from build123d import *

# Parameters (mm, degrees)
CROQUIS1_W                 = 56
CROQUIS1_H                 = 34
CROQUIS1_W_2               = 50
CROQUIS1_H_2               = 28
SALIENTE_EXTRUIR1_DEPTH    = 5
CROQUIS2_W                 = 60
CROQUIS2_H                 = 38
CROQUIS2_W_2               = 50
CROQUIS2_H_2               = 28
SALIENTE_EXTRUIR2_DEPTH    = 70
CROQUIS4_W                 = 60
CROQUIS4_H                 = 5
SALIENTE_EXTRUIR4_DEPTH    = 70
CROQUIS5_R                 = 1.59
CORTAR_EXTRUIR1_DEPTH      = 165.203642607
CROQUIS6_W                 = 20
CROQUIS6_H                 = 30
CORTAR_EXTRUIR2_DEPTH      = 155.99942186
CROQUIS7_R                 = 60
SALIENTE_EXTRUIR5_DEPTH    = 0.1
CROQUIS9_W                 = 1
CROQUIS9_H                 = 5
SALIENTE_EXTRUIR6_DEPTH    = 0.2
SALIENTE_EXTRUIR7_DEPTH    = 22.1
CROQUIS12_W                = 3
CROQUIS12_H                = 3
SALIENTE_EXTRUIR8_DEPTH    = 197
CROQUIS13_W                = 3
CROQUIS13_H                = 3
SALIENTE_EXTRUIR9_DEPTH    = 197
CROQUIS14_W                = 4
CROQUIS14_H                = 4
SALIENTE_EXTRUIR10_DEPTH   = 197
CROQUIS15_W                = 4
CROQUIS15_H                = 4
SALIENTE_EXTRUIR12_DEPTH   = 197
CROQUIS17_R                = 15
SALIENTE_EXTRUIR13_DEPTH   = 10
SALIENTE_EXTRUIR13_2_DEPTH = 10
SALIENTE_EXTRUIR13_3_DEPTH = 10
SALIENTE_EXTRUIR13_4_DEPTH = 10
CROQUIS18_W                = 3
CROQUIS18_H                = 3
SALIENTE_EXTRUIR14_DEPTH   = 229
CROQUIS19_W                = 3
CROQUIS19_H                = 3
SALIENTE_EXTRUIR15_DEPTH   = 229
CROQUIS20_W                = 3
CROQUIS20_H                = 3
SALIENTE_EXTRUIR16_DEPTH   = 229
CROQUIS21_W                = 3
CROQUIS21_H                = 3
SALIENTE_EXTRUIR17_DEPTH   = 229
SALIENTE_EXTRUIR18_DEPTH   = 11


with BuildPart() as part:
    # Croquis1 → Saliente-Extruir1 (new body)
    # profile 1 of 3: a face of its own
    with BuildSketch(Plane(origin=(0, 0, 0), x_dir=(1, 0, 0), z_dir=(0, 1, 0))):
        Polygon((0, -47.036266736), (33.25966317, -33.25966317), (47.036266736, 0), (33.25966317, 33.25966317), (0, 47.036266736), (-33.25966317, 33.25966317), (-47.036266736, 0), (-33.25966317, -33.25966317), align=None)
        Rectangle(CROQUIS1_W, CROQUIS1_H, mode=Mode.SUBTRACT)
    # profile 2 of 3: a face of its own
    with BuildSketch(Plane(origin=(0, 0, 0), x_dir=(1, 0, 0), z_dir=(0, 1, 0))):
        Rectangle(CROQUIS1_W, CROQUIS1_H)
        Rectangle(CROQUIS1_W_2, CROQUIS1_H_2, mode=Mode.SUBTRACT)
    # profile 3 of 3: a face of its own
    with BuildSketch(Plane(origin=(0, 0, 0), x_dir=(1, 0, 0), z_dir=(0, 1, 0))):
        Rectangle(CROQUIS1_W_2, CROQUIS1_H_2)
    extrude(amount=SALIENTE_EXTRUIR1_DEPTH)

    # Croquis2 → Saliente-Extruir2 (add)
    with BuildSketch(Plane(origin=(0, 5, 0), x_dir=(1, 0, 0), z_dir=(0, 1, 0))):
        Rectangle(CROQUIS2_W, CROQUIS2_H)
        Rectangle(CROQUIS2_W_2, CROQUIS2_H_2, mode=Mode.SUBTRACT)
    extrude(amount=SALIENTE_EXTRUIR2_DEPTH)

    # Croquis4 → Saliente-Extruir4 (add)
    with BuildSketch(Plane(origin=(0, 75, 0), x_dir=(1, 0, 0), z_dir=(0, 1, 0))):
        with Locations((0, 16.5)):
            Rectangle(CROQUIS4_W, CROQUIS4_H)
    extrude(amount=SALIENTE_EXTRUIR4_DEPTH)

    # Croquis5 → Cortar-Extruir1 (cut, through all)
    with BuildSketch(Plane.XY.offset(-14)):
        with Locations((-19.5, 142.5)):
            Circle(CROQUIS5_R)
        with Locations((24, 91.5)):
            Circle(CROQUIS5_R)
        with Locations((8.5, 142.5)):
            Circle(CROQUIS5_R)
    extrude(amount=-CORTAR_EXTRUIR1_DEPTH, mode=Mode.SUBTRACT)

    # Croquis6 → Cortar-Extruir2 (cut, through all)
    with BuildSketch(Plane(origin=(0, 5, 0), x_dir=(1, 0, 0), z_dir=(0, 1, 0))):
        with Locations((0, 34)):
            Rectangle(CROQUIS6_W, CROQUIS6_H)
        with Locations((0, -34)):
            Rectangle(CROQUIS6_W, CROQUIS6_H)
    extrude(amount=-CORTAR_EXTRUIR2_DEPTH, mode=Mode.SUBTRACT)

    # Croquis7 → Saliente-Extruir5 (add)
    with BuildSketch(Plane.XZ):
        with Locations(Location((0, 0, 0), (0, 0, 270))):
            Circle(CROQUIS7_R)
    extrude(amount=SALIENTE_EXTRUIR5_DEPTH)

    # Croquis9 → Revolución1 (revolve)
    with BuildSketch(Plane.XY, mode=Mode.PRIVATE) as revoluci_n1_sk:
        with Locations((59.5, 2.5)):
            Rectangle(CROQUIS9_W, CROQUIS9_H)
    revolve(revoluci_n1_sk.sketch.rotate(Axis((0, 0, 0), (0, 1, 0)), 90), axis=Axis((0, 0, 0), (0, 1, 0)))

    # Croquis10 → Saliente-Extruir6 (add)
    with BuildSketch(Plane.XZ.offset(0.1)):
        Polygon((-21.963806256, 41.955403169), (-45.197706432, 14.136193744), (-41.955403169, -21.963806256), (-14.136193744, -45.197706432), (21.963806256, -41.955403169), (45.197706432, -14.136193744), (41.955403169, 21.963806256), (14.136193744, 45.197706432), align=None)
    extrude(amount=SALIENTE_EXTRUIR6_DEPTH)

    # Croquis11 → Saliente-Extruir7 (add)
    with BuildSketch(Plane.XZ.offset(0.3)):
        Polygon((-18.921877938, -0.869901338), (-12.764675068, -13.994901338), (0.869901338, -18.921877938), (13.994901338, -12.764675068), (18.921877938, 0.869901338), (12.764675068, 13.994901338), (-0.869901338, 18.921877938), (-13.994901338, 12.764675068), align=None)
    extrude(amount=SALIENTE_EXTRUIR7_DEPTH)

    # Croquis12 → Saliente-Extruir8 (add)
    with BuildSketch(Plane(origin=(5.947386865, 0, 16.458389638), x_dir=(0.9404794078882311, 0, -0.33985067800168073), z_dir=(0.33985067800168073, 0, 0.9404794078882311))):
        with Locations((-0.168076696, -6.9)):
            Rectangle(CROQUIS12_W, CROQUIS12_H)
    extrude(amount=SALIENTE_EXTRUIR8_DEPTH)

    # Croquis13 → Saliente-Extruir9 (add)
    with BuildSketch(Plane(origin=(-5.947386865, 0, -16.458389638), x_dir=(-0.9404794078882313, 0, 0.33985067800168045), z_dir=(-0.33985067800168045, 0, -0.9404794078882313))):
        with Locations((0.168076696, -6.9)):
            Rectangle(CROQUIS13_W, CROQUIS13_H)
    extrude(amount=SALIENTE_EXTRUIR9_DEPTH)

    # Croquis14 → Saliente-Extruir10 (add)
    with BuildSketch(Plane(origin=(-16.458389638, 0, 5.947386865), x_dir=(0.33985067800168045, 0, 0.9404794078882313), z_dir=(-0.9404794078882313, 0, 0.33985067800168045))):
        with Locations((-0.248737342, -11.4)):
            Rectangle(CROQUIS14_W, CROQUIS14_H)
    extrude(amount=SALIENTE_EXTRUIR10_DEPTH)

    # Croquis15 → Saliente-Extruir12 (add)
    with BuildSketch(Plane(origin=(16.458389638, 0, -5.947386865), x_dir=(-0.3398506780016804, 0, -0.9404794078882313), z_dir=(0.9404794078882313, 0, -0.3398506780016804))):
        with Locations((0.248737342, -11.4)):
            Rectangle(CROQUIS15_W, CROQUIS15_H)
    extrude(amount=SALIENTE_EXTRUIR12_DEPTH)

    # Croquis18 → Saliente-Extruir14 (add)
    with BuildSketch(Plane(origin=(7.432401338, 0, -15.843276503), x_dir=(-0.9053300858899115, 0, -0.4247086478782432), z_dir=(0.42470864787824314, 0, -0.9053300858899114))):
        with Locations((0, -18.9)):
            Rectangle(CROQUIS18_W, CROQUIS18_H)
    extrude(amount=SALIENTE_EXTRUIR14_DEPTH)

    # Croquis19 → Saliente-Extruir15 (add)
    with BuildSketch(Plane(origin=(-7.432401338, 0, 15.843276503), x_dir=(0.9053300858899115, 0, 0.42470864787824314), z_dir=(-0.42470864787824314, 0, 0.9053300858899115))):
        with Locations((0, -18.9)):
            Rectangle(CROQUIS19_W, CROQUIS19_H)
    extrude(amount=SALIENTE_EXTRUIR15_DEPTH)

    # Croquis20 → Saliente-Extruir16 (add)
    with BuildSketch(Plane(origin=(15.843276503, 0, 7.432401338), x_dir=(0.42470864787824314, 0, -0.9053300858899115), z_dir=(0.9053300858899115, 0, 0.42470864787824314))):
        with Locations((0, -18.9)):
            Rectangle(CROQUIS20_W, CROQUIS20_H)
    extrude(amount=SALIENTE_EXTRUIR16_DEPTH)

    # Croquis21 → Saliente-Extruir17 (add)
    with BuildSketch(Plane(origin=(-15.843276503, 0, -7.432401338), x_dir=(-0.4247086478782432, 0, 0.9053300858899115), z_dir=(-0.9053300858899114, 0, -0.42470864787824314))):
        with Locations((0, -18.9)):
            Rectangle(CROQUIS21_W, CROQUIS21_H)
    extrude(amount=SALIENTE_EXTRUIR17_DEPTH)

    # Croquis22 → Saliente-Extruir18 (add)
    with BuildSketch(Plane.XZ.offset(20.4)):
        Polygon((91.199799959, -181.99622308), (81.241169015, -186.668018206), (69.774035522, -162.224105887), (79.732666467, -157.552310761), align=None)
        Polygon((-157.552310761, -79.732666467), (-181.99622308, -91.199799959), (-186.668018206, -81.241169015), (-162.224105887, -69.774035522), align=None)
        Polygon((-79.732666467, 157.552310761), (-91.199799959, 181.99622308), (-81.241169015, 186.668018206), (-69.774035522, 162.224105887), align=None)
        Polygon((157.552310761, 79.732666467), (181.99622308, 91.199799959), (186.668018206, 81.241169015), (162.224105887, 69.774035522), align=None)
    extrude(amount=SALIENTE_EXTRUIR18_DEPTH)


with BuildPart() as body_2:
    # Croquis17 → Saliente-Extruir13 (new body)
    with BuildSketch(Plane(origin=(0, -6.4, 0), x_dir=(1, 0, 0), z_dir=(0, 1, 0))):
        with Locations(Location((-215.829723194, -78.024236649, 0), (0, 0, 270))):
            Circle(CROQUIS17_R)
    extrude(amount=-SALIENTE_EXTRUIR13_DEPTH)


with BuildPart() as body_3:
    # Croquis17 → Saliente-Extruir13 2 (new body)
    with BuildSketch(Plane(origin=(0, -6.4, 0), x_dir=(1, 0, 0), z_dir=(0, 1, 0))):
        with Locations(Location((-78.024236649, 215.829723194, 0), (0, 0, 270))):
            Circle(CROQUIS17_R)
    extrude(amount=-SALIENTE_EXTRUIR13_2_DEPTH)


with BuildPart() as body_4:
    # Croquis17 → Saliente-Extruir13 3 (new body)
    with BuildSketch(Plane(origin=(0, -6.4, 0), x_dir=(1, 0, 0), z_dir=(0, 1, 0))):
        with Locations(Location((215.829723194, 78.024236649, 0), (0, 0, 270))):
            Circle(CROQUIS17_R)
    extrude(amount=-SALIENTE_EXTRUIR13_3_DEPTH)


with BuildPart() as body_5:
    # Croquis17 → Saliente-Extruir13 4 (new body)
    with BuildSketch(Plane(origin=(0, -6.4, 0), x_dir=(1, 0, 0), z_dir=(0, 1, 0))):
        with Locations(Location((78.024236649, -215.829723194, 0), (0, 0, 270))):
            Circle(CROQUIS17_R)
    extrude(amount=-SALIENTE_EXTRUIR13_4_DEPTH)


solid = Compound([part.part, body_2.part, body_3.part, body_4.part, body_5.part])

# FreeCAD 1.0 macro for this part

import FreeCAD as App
import Part
import Sketcher
Q = App.Units.Quantity

doc = App.newDocument("Part")
body = doc.addObject("PartDesign::Body", "Body")

# Sketch on XZ plane
sketch1 = body.newObject("Sketcher::SketchObject", "Sketch")
sketch1.AttachmentSupport = (doc.getObject("XZ_Plane"), [""])
sketch1.MapMode = "FlatFace"
sketch1.addGeometry(Part.LineSegment(App.Vector(0, 47, 0), App.Vector(33, 33, 0)), False)
sketch1.addGeometry(Part.LineSegment(App.Vector(33, 33, 0), App.Vector(47, 0, 0)), False)
sketch1.addGeometry(Part.LineSegment(App.Vector(47, 0, 0), App.Vector(33, -33, 0)), False)
sketch1.addGeometry(Part.LineSegment(App.Vector(33, -33, 0), App.Vector(0, -47, 0)), False)
sketch1.addGeometry(Part.LineSegment(App.Vector(0, -47, 0), App.Vector(-33, -33, 0)), False)
sketch1.addGeometry(Part.LineSegment(App.Vector(-33, -33, 0), App.Vector(-47, 0, 0)), False)
sketch1.addGeometry(Part.LineSegment(App.Vector(-47, 0, 0), App.Vector(-33, 33, 0)), False)
sketch1.addGeometry(Part.LineSegment(App.Vector(-33, 33, 0), App.Vector(0, 47, 0)), False)
sketch1.addConstraint(Sketcher.Constraint("Coincident", 0, 2, 1, 1))
sketch1.addConstraint(Sketcher.Constraint("Coincident", 1, 2, 2, 1))
sketch1.addConstraint(Sketcher.Constraint("Coincident", 2, 2, 3, 1))
sketch1.addConstraint(Sketcher.Constraint("Coincident", 3, 2, 4, 1))
sketch1.addConstraint(Sketcher.Constraint("Coincident", 4, 2, 5, 1))
sketch1.addConstraint(Sketcher.Constraint("Coincident", 5, 2, 6, 1))
sketch1.addConstraint(Sketcher.Constraint("Coincident", 6, 2, 7, 1))
sketch1.addConstraint(Sketcher.Constraint("Coincident", 7, 2, 0, 1))
sketch1.addConstraint(Sketcher.Constraint("Symmetric", 0, 2, 4, 2, -1, 1))
sketch1.addConstraint(Sketcher.Constraint("Symmetric", 1, 2, 5, 2, -1, 1))
sketch1.addConstraint(Sketcher.Constraint("Symmetric", 2, 2, 6, 2, -1, 1))
sketch1.addConstraint(Sketcher.Constraint("Symmetric", 3, 2, 7, 2, -1, 1))
sketch1.addConstraint(Sketcher.Constraint("Symmetric", 2, 2, 4, 2, -2))
sketch1.addConstraint(Sketcher.Constraint("PointOnObject", 1, 2, -1))
sketch1.addConstraint(Sketcher.Constraint("PointOnObject", 3, 2, -2))
sketch1.addConstraint(Sketcher.Constraint("Perpendicular", 0, 2))
sketch1.addConstraint(Sketcher.Constraint("Equal", 0, 1))
sketch1.addConstraint(Sketcher.Constraint("Distance", 0, 36.0))
sketch1.addConstraint(Sketcher.Constraint("Angle", 0, Q("-22.5 deg")))
pad1 = body.newObject("PartDesign::Pad", "Pad")
pad1.Profile = sketch1
pad1.Length = 5
pad1.Reversed = True

# Sketch on XZ plane
sketch2 = body.newObject("Sketcher::SketchObject", "Sketch001")
sketch2.AttachmentSupport = (doc.getObject("XZ_Plane"), [""])
sketch2.MapMode = "FlatFace"
sketch2.AttachmentOffset = App.Placement(App.Vector(0, 0, -5), App.Rotation())
sketch2.addGeometry(Part.LineSegment(App.Vector(-30, -19, 0), App.Vector(-30, 19, 0)), False)
sketch2.addGeometry(Part.LineSegment(App.Vector(-30, 19, 0), App.Vector(30, 19, 0)), False)
sketch2.addGeometry(Part.LineSegment(App.Vector(30, 19, 0), App.Vector(30, -19, 0)), False)
sketch2.addGeometry(Part.LineSegment(App.Vector(30, -19, 0), App.Vector(-30, -19, 0)), False)
sketch2.addGeometry(Part.LineSegment(App.Vector(25, 14, 0), App.Vector(-25, 14, 0)), False)
sketch2.addGeometry(Part.LineSegment(App.Vector(-25, 14, 0), App.Vector(-25, -14, 0)), False)
sketch2.addGeometry(Part.LineSegment(App.Vector(-25, -14, 0), App.Vector(25, -14, 0)), False)
sketch2.addGeometry(Part.LineSegment(App.Vector(25, -14, 0), App.Vector(25, 14, 0)), False)
sketch2.addConstraint(Sketcher.Constraint("Coincident", 0, 2, 1, 1))
sketch2.addConstraint(Sketcher.Constraint("Coincident", 1, 2, 2, 1))
sketch2.addConstraint(Sketcher.Constraint("Coincident", 2, 2, 3, 1))
sketch2.addConstraint(Sketcher.Constraint("Coincident", 3, 2, 0, 1))
sketch2.addConstraint(Sketcher.Constraint("Coincident", 4, 2, 5, 1))
sketch2.addConstraint(Sketcher.Constraint("Coincident", 5, 2, 6, 1))
sketch2.addConstraint(Sketcher.Constraint("Coincident", 6, 2, 7, 1))
sketch2.addConstraint(Sketcher.Constraint("Coincident", 7, 2, 4, 1))
sketch2.addConstraint(Sketcher.Constraint("Vertical", 0))
sketch2.addConstraint(Sketcher.Constraint("Horizontal", 1))
sketch2.addConstraint(Sketcher.Constraint("Vertical", 2))
sketch2.addConstraint(Sketcher.Constraint("Horizontal", 3))
sketch2.addConstraint(Sketcher.Constraint("Horizontal", 4))
sketch2.addConstraint(Sketcher.Constraint("Vertical", 5))
sketch2.addConstraint(Sketcher.Constraint("Horizontal", 6))
sketch2.addConstraint(Sketcher.Constraint("Vertical", 7))
sketch2.addConstraint(Sketcher.Constraint("Symmetric", 0, 2, 2, 2, -1, 1))
sketch2.addConstraint(Sketcher.Constraint("Symmetric", 4, 2, 6, 2, -1, 1))
sketch2.addConstraint(Sketcher.Constraint("DistanceX", 1, 1, 1, 2, 60.0))
sketch2.addConstraint(Sketcher.Constraint("DistanceX", 4, 2, 4, 1, 50.0))
sketch2.addConstraint(Sketcher.Constraint("DistanceY", 0, 1, 0, 2, 38.0))
sketch2.addConstraint(Sketcher.Constraint("DistanceY", 5, 2, 5, 1, 28.0))
pad2 = body.newObject("PartDesign::Pad", "Pad001")
pad2.Profile = sketch2
pad2.Length = 70
pad2.Reversed = True

# Sketch on XZ plane
sketch3 = body.newObject("Sketcher::SketchObject", "Sketch002")
sketch3.AttachmentSupport = (doc.getObject("XZ_Plane"), [""])
sketch3.MapMode = "FlatFace"
sketch3.AttachmentOffset = App.Placement(App.Vector(0, 0, -75), App.Rotation())
sketch3.addGeometry(Part.LineSegment(App.Vector(-30, -19, 0), App.Vector(-30, -14, 0)), False)
sketch3.addGeometry(Part.LineSegment(App.Vector(-30, -14, 0), App.Vector(30, -14, 0)), False)
sketch3.addGeometry(Part.LineSegment(App.Vector(30, -14, 0), App.Vector(30, -19, 0)), False)
sketch3.addGeometry(Part.LineSegment(App.Vector(30, -19, 0), App.Vector(-30, -19, 0)), False)
sketch3.addConstraint(Sketcher.Constraint("Coincident", 0, 2, 1, 1))
sketch3.addConstraint(Sketcher.Constraint("Coincident", 1, 2, 2, 1))
sketch3.addConstraint(Sketcher.Constraint("Coincident", 2, 2, 3, 1))
sketch3.addConstraint(Sketcher.Constraint("Coincident", 3, 2, 0, 1))
sketch3.addConstraint(Sketcher.Constraint("Vertical", 0))
sketch3.addConstraint(Sketcher.Constraint("Horizontal", 1))
sketch3.addConstraint(Sketcher.Constraint("Vertical", 2))
sketch3.addConstraint(Sketcher.Constraint("Horizontal", 3))
sketch3.addConstraint(Sketcher.Constraint("DistanceX", 1, 1, 1, 2, 60.0))
sketch3.addConstraint(Sketcher.Constraint("DistanceY", 0, 1, 0, 2, 5.0))
sketch3.addConstraint(Sketcher.Constraint("DistanceX", 0, 2, -1, 1, 30.0))
sketch3.addConstraint(Sketcher.Constraint("DistanceY", 0, 2, -1, 1, 14.0))
pad3 = body.newObject("PartDesign::Pad", "Pad002")
pad3.Profile = sketch3
pad3.Length = 70
pad3.Reversed = True

# Sketch on XY plane
sketch4 = body.newObject("Sketcher::SketchObject", "Sketch003")
sketch4.AttachmentSupport = (doc.getObject("XY_Plane"), [""])
sketch4.MapMode = "FlatFace"
sketch4.AttachmentOffset = App.Placement(App.Vector(0, 0, -14), App.Rotation())
sketch4.addGeometry(Part.Circle(App.Vector(-19.5, 142.5, 0), App.Vector(0, 0, 1), 1.6), False)
sketch4.addGeometry(Part.Circle(App.Vector(24, 91.5, 0), App.Vector(0, 0, 1), 1.6), False)
sketch4.addGeometry(Part.Circle(App.Vector(8.5, 142.5, 0), App.Vector(0, 0, 1), 1.6), False)
sketch4.addConstraint(Sketcher.Constraint("Equal", 0, 1))
sketch4.addConstraint(Sketcher.Constraint("Equal", 1, 2))
sketch4.addConstraint(Sketcher.Constraint("Horizontal", 0, 3, 2, 3))
sketch4.addConstraint(Sketcher.Constraint("Diameter", 0, 3.18))
sketch4.addConstraint(Sketcher.Constraint("DistanceX", -1, 1, 1, 3, 24.0))
sketch4.addConstraint(Sketcher.Constraint("DistanceY", 1, 3, 0, 3, 51.0))
sketch4.addConstraint(Sketcher.Constraint("DistanceX", 0, 3, 2, 3, 28.0))
sketch4.addConstraint(Sketcher.Constraint("DistanceX", 0, 3, -1, 1, 19.5))
sketch4.addConstraint(Sketcher.Constraint("DistanceY", -1, 1, 0, 3, 142.5))
pocket1 = body.newObject("PartDesign::Pocket", "Pocket")
pocket1.Profile = sketch4
pocket1.Type = "ThroughAll"

# Sketch on XZ plane
sketch5 = body.newObject("Sketcher::SketchObject", "Sketch004")
sketch5.AttachmentSupport = (doc.getObject("XZ_Plane"), [""])
sketch5.MapMode = "FlatFace"
sketch5.AttachmentOffset = App.Placement(App.Vector(0, 0, -5), App.Rotation())
sketch5.addGeometry(Part.LineSegment(App.Vector(-10, -49, 0), App.Vector(-10, -19, 0)), False)
sketch5.addGeometry(Part.LineSegment(App.Vector(-10, -19, 0), App.Vector(10, -19, 0)), False)
sketch5.addGeometry(Part.LineSegment(App.Vector(10, -19, 0), App.Vector(10, -49, 0)), False)
sketch5.addGeometry(Part.LineSegment(App.Vector(10, -49, 0), App.Vector(-10, -49, 0)), False)
sketch5.addGeometry(Part.LineSegment(App.Vector(-10, 19, 0), App.Vector(-10, 49, 0)), False)
sketch5.addGeometry(Part.LineSegment(App.Vector(-10, 49, 0), App.Vector(10, 49, 0)), False)
sketch5.addGeometry(Part.LineSegment(App.Vector(10, 49, 0), App.Vector(10, 19, 0)), False)
sketch5.addGeometry(Part.LineSegment(App.Vector(10, 19, 0), App.Vector(-10, 19, 0)), False)
sketch5.addConstraint(Sketcher.Constraint("Coincident", 0, 2, 1, 1))
sketch5.addConstraint(Sketcher.Constraint("Coincident", 1, 2, 2, 1))
sketch5.addConstraint(Sketcher.Constraint("Coincident", 2, 2, 3, 1))
sketch5.addConstraint(Sketcher.Constraint("Coincident", 3, 2, 0, 1))
sketch5.addConstraint(Sketcher.Constraint("Coincident", 4, 2, 5, 1))
sketch5.addConstraint(Sketcher.Constraint("Coincident", 5, 2, 6, 1))
sketch5.addConstraint(Sketcher.Constraint("Coincident", 6, 2, 7, 1))
sketch5.addConstraint(Sketcher.Constraint("Coincident", 7, 2, 4, 1))
sketch5.addConstraint(Sketcher.Constraint("Vertical", 0))
sketch5.addConstraint(Sketcher.Constraint("Horizontal", 1))
sketch5.addConstraint(Sketcher.Constraint("Vertical", 2))
sketch5.addConstraint(Sketcher.Constraint("Horizontal", 3))
sketch5.addConstraint(Sketcher.Constraint("Vertical", 4))
sketch5.addConstraint(Sketcher.Constraint("Horizontal", 5))
sketch5.addConstraint(Sketcher.Constraint("Vertical", 6))
sketch5.addConstraint(Sketcher.Constraint("Horizontal", 7))
sketch5.addConstraint(Sketcher.Constraint("Symmetric", 2, 2, 4, 2, -1, 1))
sketch5.addConstraint(Sketcher.Constraint("Symmetric", 0, 2, 6, 2, -1, 1))
sketch5.addConstraint(Sketcher.Constraint("Vertical", 3, 2, 4, 2))
sketch5.addConstraint(Sketcher.Constraint("DistanceX", 1, 1, 1, 2, 20.0))
sketch5.addConstraint(Sketcher.Constraint("DistanceY", 0, 1, 0, 2, 30.0))
sketch5.addConstraint(Sketcher.Constraint("DistanceY", 0, 2, -1, 1, 19.0))
pocket2 = body.newObject("PartDesign::Pocket", "Pocket001")
pocket2.Profile = sketch5
pocket2.Type = "ThroughAll"
pocket2.Reversed = True

# Sketch on XZ plane
sketch6 = body.newObject("Sketcher::SketchObject", "Sketch005")
sketch6.AttachmentSupport = (doc.getObject("XZ_Plane"), [""])
sketch6.MapMode = "FlatFace"
sketch6.addGeometry(Part.Circle(App.Vector(0, 0, 0), App.Vector(0, 0, 1), 60), False)
sketch6.addConstraint(Sketcher.Constraint("Coincident", 0, 3, -1, 1))
sketch6.addConstraint(Sketcher.Constraint("Diameter", 0, 120.0))
pad4 = body.newObject("PartDesign::Pad", "Pad003")
pad4.Profile = sketch6
pad4.Length = 0.1

# Sketch on XY plane
sketch7 = body.newObject("Sketcher::SketchObject", "Sketch006")
sketch7.AttachmentSupport = (doc.getObject("XY_Plane"), [""])
sketch7.MapMode = "FlatFace"
sketch7.addGeometry(Part.LineSegment(App.Vector(59, 5, 0), App.Vector(59, 0, 0)), False)
sketch7.addGeometry(Part.LineSegment(App.Vector(59, 0, 0), App.Vector(60, 0, 0)), False)
sketch7.addGeometry(Part.LineSegment(App.Vector(60, 0, 0), App.Vector(60, 5, 0)), False)
sketch7.addGeometry(Part.LineSegment(App.Vector(60, 5, 0), App.Vector(59, 5, 0)), False)
sketch7.addConstraint(Sketcher.Constraint("Coincident", 0, 2, 1, 1))
sketch7.addConstraint(Sketcher.Constraint("Coincident", 1, 2, 2, 1))
sketch7.addConstraint(Sketcher.Constraint("Coincident", 2, 2, 3, 1))
sketch7.addConstraint(Sketcher.Constraint("Coincident", 3, 2, 0, 1))
sketch7.addConstraint(Sketcher.Constraint("Vertical", 0))
sketch7.addConstraint(Sketcher.Constraint("Horizontal", 1))
sketch7.addConstraint(Sketcher.Constraint("Vertical", 2))
sketch7.addConstraint(Sketcher.Constraint("Horizontal", 3))
sketch7.addConstraint(Sketcher.Constraint("PointOnObject", 0, 2, -1))
sketch7.addConstraint(Sketcher.Constraint("DistanceX", 1, 1, 1, 2, 1.0))
sketch7.addConstraint(Sketcher.Constraint("DistanceY", 0, 2, 0, 1, 5.0))
sketch7.addConstraint(Sketcher.Constraint("DistanceX", -1, 1, 0, 2, 59.0))
revolution = body.newObject("PartDesign::Revolution", "Revolution")
revolution.Profile = sketch7
revolution.ReferenceAxis = (sketch7, ["V_Axis"])
revolution.Angle = 360

# Sketch on XZ plane
sketch8 = body.newObject("Sketcher::SketchObject", "Sketch007")
sketch8.AttachmentSupport = (doc.getObject("XZ_Plane"), [""])
sketch8.MapMode = "FlatFace"
sketch8.AttachmentOffset = App.Placement(App.Vector(0, 0, 0.1), App.Rotation())
sketch8.addGeometry(Part.LineSegment(App.Vector(-22, 42, 0), App.Vector(-45, 14, 0)), False)
sketch8.addGeometry(Part.LineSegment(App.Vector(-45, 14, 0), App.Vector(-42, -22, 0)), False)
sketch8.addGeometry(Part.LineSegment(App.Vector(-42, -22, 0), App.Vector(-14, -45, 0)), False)
sketch8.addGeometry(Part.LineSegment(App.Vector(-14, -45, 0), App.Vector(22, -42, 0)), False)
sketch8.addGeometry(Part.LineSegment(App.Vector(22, -42, 0), App.Vector(45, -14, 0)), False)
sketch8.addGeometry(Part.LineSegment(App.Vector(45, -14, 0), App.Vector(42, 22, 0)), False)
sketch8.addGeometry(Part.LineSegment(App.Vector(42, 22, 0), App.Vector(14, 45, 0)), False)
sketch8.addGeometry(Part.LineSegment(App.Vector(14, 45, 0), App.Vector(-22, 42, 0)), False)
sketch8.addConstraint(Sketcher.Constraint("Coincident", 0, 2, 1, 1))
sketch8.addConstraint(Sketcher.Constraint("Coincident", 1, 2, 2, 1))
sketch8.addConstraint(Sketcher.Constraint("Coincident", 2, 2, 3, 1))
sketch8.addConstraint(Sketcher.Constraint("Coincident", 3, 2, 4, 1))
sketch8.addConstraint(Sketcher.Constraint("Coincident", 4, 2, 5, 1))
sketch8.addConstraint(Sketcher.Constraint("Coincident", 5, 2, 6, 1))
sketch8.addConstraint(Sketcher.Constraint("Coincident", 6, 2, 7, 1))
sketch8.addConstraint(Sketcher.Constraint("Coincident", 7, 2, 0, 1))
sketch8.addConstraint(Sketcher.Constraint("Symmetric", 0, 2, 4, 2, -1, 1))
sketch8.addConstraint(Sketcher.Constraint("Symmetric", 1, 2, 5, 2, -1, 1))
sketch8.addConstraint(Sketcher.Constraint("Symmetric", 2, 2, 6, 2, -1, 1))
sketch8.addConstraint(Sketcher.Constraint("Symmetric", 3, 2, 7, 2, -1, 1))
sketch8.addConstraint(Sketcher.Constraint("Perpendicular", 0, 2))
sketch8.addConstraint(Sketcher.Constraint("Perpendicular", 1, 3))
sketch8.addConstraint(Sketcher.Constraint("Equal", 0, 1))
sketch8.addConstraint(Sketcher.Constraint("Equal", 1, 2))
sketch8.addConstraint(Sketcher.Constraint("Equal", 2, 3))
sketch8.addConstraint(Sketcher.Constraint("DistanceY", 1, 2, 0, 2, 36.1))
sketch8.addConstraint(Sketcher.Constraint("DistanceY", 2, 2, 1, 2, 23.2339))
sketch8.addConstraint(Sketcher.Constraint("Distance", 0, 36.24531))
pad5 = body.newObject("PartDesign::Pad", "Pad004")
pad5.Profile = sketch8
pad5.Length = 0.2

# Sketch on XZ plane
sketch9 = body.newObject("Sketcher::SketchObject", "Sketch008")
sketch9.AttachmentSupport = (doc.getObject("XZ_Plane"), [""])
sketch9.MapMode = "FlatFace"
sketch9.AttachmentOffset = App.Placement(App.Vector(0, 0, 0.3), App.Rotation())
sketch9.addGeometry(Part.LineSegment(App.Vector(-19, -1, 0), App.Vector(-13, -14, 0)), False)
sketch9.addGeometry(Part.LineSegment(App.Vector(-13, -14, 0), App.Vector(1, -19, 0)), False)
sketch9.addGeometry(Part.LineSegment(App.Vector(1, -19, 0), App.Vector(14, -13, 0)), False)
sketch9.addGeometry(Part.LineSegment(App.Vector(14, -13, 0), App.Vector(19, 1, 0)), False)
sketch9.addGeometry(Part.LineSegment(App.Vector(19, 1, 0), App.Vector(13, 14, 0)), False)
sketch9.addGeometry(Part.LineSegment(App.Vector(13, 14, 0), App.Vector(-1, 19, 0)), False)
sketch9.addGeometry(Part.LineSegment(App.Vector(-1, 19, 0), App.Vector(-14, 13, 0)), False)
sketch9.addGeometry(Part.LineSegment(App.Vector(-14, 13, 0), App.Vector(-19, -1, 0)), False)
sketch9.addConstraint(Sketcher.Constraint("Coincident", 0, 2, 1, 1))
sketch9.addConstraint(Sketcher.Constraint("Coincident", 1, 2, 2, 1))
sketch9.addConstraint(Sketcher.Constraint("Coincident", 2, 2, 3, 1))
sketch9.addConstraint(Sketcher.Constraint("Coincident", 3, 2, 4, 1))
sketch9.addConstraint(Sketcher.Constraint("Coincident", 4, 2, 5, 1))
sketch9.addConstraint(Sketcher.Constraint("Coincident", 5, 2, 6, 1))
sketch9.addConstraint(Sketcher.Constraint("Coincident", 6, 2, 7, 1))
sketch9.addConstraint(Sketcher.Constraint("Coincident", 7, 2, 0, 1))
sketch9.addConstraint(Sketcher.Constraint("Symmetric", 0, 2, 4, 2, -1, 1))
sketch9.addConstraint(Sketcher.Constraint("Symmetric", 1, 2, 5, 2, -1, 1))
sketch9.addConstraint(Sketcher.Constraint("Symmetric", 2, 2, 6, 2, -1, 1))
sketch9.addConstraint(Sketcher.Constraint("Symmetric", 3, 2, 7, 2, -1, 1))
sketch9.addConstraint(Sketcher.Constraint("Perpendicular", 0, 2))
sketch9.addConstraint(Sketcher.Constraint("Perpendicular", 1, 3))
sketch9.addConstraint(Sketcher.Constraint("Equal", 0, 1))
sketch9.addConstraint(Sketcher.Constraint("Equal", 1, 2))
sketch9.addConstraint(Sketcher.Constraint("Equal", 2, 3))
sketch9.addConstraint(Sketcher.Constraint("DistanceX", 1, 2, 2, 2, 13.125))
sketch9.addConstraint(Sketcher.Constraint("DistanceY", 0, 2, -1, 1, 13.994901))
sketch9.addConstraint(Sketcher.Constraint("DistanceY", 1, 2, 3, 2, 19.791779))
pad6 = body.newObject("PartDesign::Pad", "Pad005")
pad6.Profile = sketch9
pad6.Length = 22.1

# Sketch on an angled plane
sketch10 = body.newObject("Sketcher::SketchObject", "Sketch009")
sketch10.Placement = App.Placement(App.Vector(5.947387, 0, 16.45839), App.Rotation(App.Vector(0.940479408, 0, -0.339850678), App.Vector(0, 1, 0), App.Vector(0.339850678, 0, 0.940479408), "ZXY"))
sketch10.addGeometry(Part.LineSegment(App.Vector(-1.7, -5.4, 0), App.Vector(-1.7, -8.4, 0)), False)
sketch10.addGeometry(Part.LineSegment(App.Vector(-1.7, -8.4, 0), App.Vector(1.3, -8.4, 0)), False)
sketch10.addGeometry(Part.LineSegment(App.Vector(1.3, -8.4, 0), App.Vector(1.3, -5.4, 0)), False)
sketch10.addGeometry(Part.LineSegment(App.Vector(1.3, -5.4, 0), App.Vector(-1.7, -5.4, 0)), False)
sketch10.addConstraint(Sketcher.Constraint("Coincident", 0, 2, 1, 1))
sketch10.addConstraint(Sketcher.Constraint("Coincident", 1, 2, 2, 1))
sketch10.addConstraint(Sketcher.Constraint("Coincident", 2, 2, 3, 1))
sketch10.addConstraint(Sketcher.Constraint("Coincident", 3, 2, 0, 1))
sketch10.addConstraint(Sketcher.Constraint("Vertical", 0))
sketch10.addConstraint(Sketcher.Constraint("Horizontal", 1))
sketch10.addConstraint(Sketcher.Constraint("Vertical", 2))
sketch10.addConstraint(Sketcher.Constraint("Horizontal", 3))
sketch10.addConstraint(Sketcher.Constraint("Equal", 3, 0))
sketch10.addConstraint(Sketcher.Constraint("DistanceX", 1, 1, 1, 2, 3.0))
sketch10.addConstraint(Sketcher.Constraint("DistanceY", 0, 2, -1, 1, 8.4))
sketch10.addConstraint(Sketcher.Constraint("DistanceX", 0, 2, -1, 1, 1.668077))
pad7 = body.newObject("PartDesign::Pad", "Pad006")
pad7.Profile = sketch10
pad7.Length = 197

# Sketch on an angled plane
sketch11 = body.newObject("Sketcher::SketchObject", "Sketch010")
sketch11.Placement = App.Placement(App.Vector(-5.947387, 0, -16.45839), App.Rotation(App.Vector(-0.940479408, 0, 0.339850678), App.Vector(0, 1, 0), App.Vector(-0.339850678, 0, -0.940479408), "ZXY"))
sketch11.addGeometry(Part.LineSegment(App.Vector(-1.3, -5.4, 0), App.Vector(-1.3, -8.4, 0)), False)
sketch11.addGeometry(Part.LineSegment(App.Vector(-1.3, -8.4, 0), App.Vector(1.7, -8.4, 0)), False)
sketch11.addGeometry(Part.LineSegment(App.Vector(1.7, -8.4, 0), App.Vector(1.7, -5.4, 0)), False)
sketch11.addGeometry(Part.LineSegment(App.Vector(1.7, -5.4, 0), App.Vector(-1.3, -5.4, 0)), False)
sketch11.addConstraint(Sketcher.Constraint("Coincident", 0, 2, 1, 1))
sketch11.addConstraint(Sketcher.Constraint("Coincident", 1, 2, 2, 1))
sketch11.addConstraint(Sketcher.Constraint("Coincident", 2, 2, 3, 1))
sketch11.addConstraint(Sketcher.Constraint("Coincident", 3, 2, 0, 1))
sketch11.addConstraint(Sketcher.Constraint("Vertical", 0))
sketch11.addConstraint(Sketcher.Constraint("Horizontal", 1))
sketch11.addConstraint(Sketcher.Constraint("Vertical", 2))
sketch11.addConstraint(Sketcher.Constraint("Horizontal", 3))
sketch11.addConstraint(Sketcher.Constraint("Equal", 3, 0))
sketch11.addConstraint(Sketcher.Constraint("DistanceX", 1, 1, 1, 2, 3.0))
sketch11.addConstraint(Sketcher.Constraint("DistanceY", 0, 2, -1, 1, 8.4))
sketch11.addConstraint(Sketcher.Constraint("DistanceX", 0, 2, -1, 1, 1.331923))
pad8 = body.newObject("PartDesign::Pad", "Pad007")
pad8.Profile = sketch11
pad8.Length = 197

# Sketch on an angled plane
sketch12 = body.newObject("Sketcher::SketchObject", "Sketch011")
sketch12.Placement = App.Placement(App.Vector(-16.45839, 0, 5.947387), App.Rotation(App.Vector(0.339850678, 0, 0.940479408), App.Vector(0, 1, 0), App.Vector(-0.940479408, 0, 0.339850678), "ZXY"))
sketch12.addGeometry(Part.LineSegment(App.Vector(-2.2, -9.4, 0), App.Vector(-2.2, -13.4, 0)), False)
sketch12.addGeometry(Part.LineSegment(App.Vector(-2.2, -13.4, 0), App.Vector(1.8, -13.4, 0)), False)
sketch12.addGeometry(Part.LineSegment(App.Vector(1.8, -13.4, 0), App.Vector(1.8, -9.4, 0)), False)
sketch12.addGeometry(Part.LineSegment(App.Vector(1.8, -9.4, 0), App.Vector(-2.2, -9.4, 0)), False)
sketch12.addConstraint(Sketcher.Constraint("Coincident", 0, 2, 1, 1))
sketch12.addConstraint(Sketcher.Constraint("Coincident", 1, 2, 2, 1))
sketch12.addConstraint(Sketcher.Constraint("Coincident", 2, 2, 3, 1))
sketch12.addConstraint(Sketcher.Constraint("Coincident", 3, 2, 0, 1))
sketch12.addConstraint(Sketcher.Constraint("Vertical", 0))
sketch12.addConstraint(Sketcher.Constraint("Horizontal", 1))
sketch12.addConstraint(Sketcher.Constraint("Vertical", 2))
sketch12.addConstraint(Sketcher.Constraint("Horizontal", 3))
sketch12.addConstraint(Sketcher.Constraint("Equal", 3, 0))
sketch12.addConstraint(Sketcher.Constraint("DistanceX", 1, 1, 1, 2, 4.0))
sketch12.addConstraint(Sketcher.Constraint("DistanceY", 0, 2, -1, 1, 13.4))
sketch12.addConstraint(Sketcher.Constraint("DistanceX", 0, 2, -1, 1, 2.248737))
pad9 = body.newObject("PartDesign::Pad", "Pad008")
pad9.Profile = sketch12
pad9.Length = 197

# Sketch on an angled plane
sketch13 = body.newObject("Sketcher::SketchObject", "Sketch012")
sketch13.Placement = App.Placement(App.Vector(16.45839, 0, -5.947387), App.Rotation(App.Vector(-0.339850678, 0, -0.940479408), App.Vector(0, 1, 0), App.Vector(0.940479408, 0, -0.339850678), "ZXY"))
sketch13.addGeometry(Part.LineSegment(App.Vector(-1.8, -9.4, 0), App.Vector(-1.8, -13.4, 0)), False)
sketch13.addGeometry(Part.LineSegment(App.Vector(-1.8, -13.4, 0), App.Vector(2.2, -13.4, 0)), False)
sketch13.addGeometry(Part.LineSegment(App.Vector(2.2, -13.4, 0), App.Vector(2.2, -9.4, 0)), False)
sketch13.addGeometry(Part.LineSegment(App.Vector(2.2, -9.4, 0), App.Vector(-1.8, -9.4, 0)), False)
sketch13.addConstraint(Sketcher.Constraint("Coincident", 0, 2, 1, 1))
sketch13.addConstraint(Sketcher.Constraint("Coincident", 1, 2, 2, 1))
sketch13.addConstraint(Sketcher.Constraint("Coincident", 2, 2, 3, 1))
sketch13.addConstraint(Sketcher.Constraint("Coincident", 3, 2, 0, 1))
sketch13.addConstraint(Sketcher.Constraint("Vertical", 0))
sketch13.addConstraint(Sketcher.Constraint("Horizontal", 1))
sketch13.addConstraint(Sketcher.Constraint("Vertical", 2))
sketch13.addConstraint(Sketcher.Constraint("Horizontal", 3))
sketch13.addConstraint(Sketcher.Constraint("Equal", 3, 0))
sketch13.addConstraint(Sketcher.Constraint("DistanceX", 1, 1, 1, 2, 4.0))
sketch13.addConstraint(Sketcher.Constraint("DistanceY", 0, 2, -1, 1, 13.4))
sketch13.addConstraint(Sketcher.Constraint("DistanceX", 0, 2, -1, 1, 1.751263))
pad10 = body.newObject("PartDesign::Pad", "Pad009")
pad10.Profile = sketch13
pad10.Length = 197

# Sketch on an angled plane
sketch14 = body.newObject("Sketcher::SketchObject", "Sketch013")
sketch14.Placement = App.Placement(App.Vector(7.432401, 0, -15.843277), App.Rotation(App.Vector(-0.905330086, 0, -0.424708648), App.Vector(0, 1, 0), App.Vector(0.424708648, 0, -0.905330086), "ZXY"))
sketch14.addGeometry(Part.LineSegment(App.Vector(-1.5, -17.4, 0), App.Vector(-1.5, -20.4, 0)), False)
sketch14.addGeometry(Part.LineSegment(App.Vector(-1.5, -20.4, 0), App.Vector(1.5, -20.4, 0)), False)
sketch14.addGeometry(Part.LineSegment(App.Vector(1.5, -20.4, 0), App.Vector(1.5, -17.4, 0)), False)
sketch14.addGeometry(Part.LineSegment(App.Vector(1.5, -17.4, 0), App.Vector(-1.5, -17.4, 0)), False)
sketch14.addConstraint(Sketcher.Constraint("Coincident", 0, 2, 1, 1))
sketch14.addConstraint(Sketcher.Constraint("Coincident", 1, 2, 2, 1))
sketch14.addConstraint(Sketcher.Constraint("Coincident", 2, 2, 3, 1))
sketch14.addConstraint(Sketcher.Constraint("Coincident", 3, 2, 0, 1))
sketch14.addConstraint(Sketcher.Constraint("Vertical", 0))
sketch14.addConstraint(Sketcher.Constraint("Horizontal", 1))
sketch14.addConstraint(Sketcher.Constraint("Vertical", 2))
sketch14.addConstraint(Sketcher.Constraint("Horizontal", 3))
sketch14.addConstraint(Sketcher.Constraint("Equal", 3, 0))
sketch14.addConstraint(Sketcher.Constraint("DistanceX", 1, 1, 1, 2, 3.0))
sketch14.addConstraint(Sketcher.Constraint("DistanceX", 0, 2, -1, 1, 1.5))
sketch14.addConstraint(Sketcher.Constraint("DistanceY", 0, 2, -1, 1, 20.4))
pad11 = body.newObject("PartDesign::Pad", "Pad010")
pad11.Profile = sketch14
pad11.Length = 229

# Sketch on an angled plane
sketch15 = body.newObject("Sketcher::SketchObject", "Sketch014")
sketch15.Placement = App.Placement(App.Vector(-7.432401, 0, 15.843277), App.Rotation(App.Vector(0.905330086, 0, 0.424708648), App.Vector(0, 1, 0), App.Vector(-0.424708648, 0, 0.905330086), "ZXY"))
sketch15.addGeometry(Part.LineSegment(App.Vector(-1.5, -17.4, 0), App.Vector(-1.5, -20.4, 0)), False)
sketch15.addGeometry(Part.LineSegment(App.Vector(-1.5, -20.4, 0), App.Vector(1.5, -20.4, 0)), False)
sketch15.addGeometry(Part.LineSegment(App.Vector(1.5, -20.4, 0), App.Vector(1.5, -17.4, 0)), False)
sketch15.addGeometry(Part.LineSegment(App.Vector(1.5, -17.4, 0), App.Vector(-1.5, -17.4, 0)), False)
sketch15.addConstraint(Sketcher.Constraint("Coincident", 0, 2, 1, 1))
sketch15.addConstraint(Sketcher.Constraint("Coincident", 1, 2, 2, 1))
sketch15.addConstraint(Sketcher.Constraint("Coincident", 2, 2, 3, 1))
sketch15.addConstraint(Sketcher.Constraint("Coincident", 3, 2, 0, 1))
sketch15.addConstraint(Sketcher.Constraint("Vertical", 0))
sketch15.addConstraint(Sketcher.Constraint("Horizontal", 1))
sketch15.addConstraint(Sketcher.Constraint("Vertical", 2))
sketch15.addConstraint(Sketcher.Constraint("Horizontal", 3))
sketch15.addConstraint(Sketcher.Constraint("Equal", 3, 0))
sketch15.addConstraint(Sketcher.Constraint("DistanceX", 1, 1, 1, 2, 3.0))
sketch15.addConstraint(Sketcher.Constraint("DistanceX", 0, 2, -1, 1, 1.5))
sketch15.addConstraint(Sketcher.Constraint("DistanceY", 0, 2, -1, 1, 20.4))
pad12 = body.newObject("PartDesign::Pad", "Pad011")
pad12.Profile = sketch15
pad12.Length = 229

# Sketch on an angled plane
sketch16 = body.newObject("Sketcher::SketchObject", "Sketch015")
sketch16.Placement = App.Placement(App.Vector(15.843277, 0, 7.432401), App.Rotation(App.Vector(0.424708648, 0, -0.905330086), App.Vector(0, 1, 0), App.Vector(0.905330086, 0, 0.424708648), "ZXY"))
sketch16.addGeometry(Part.LineSegment(App.Vector(-1.5, -17.4, 0), App.Vector(-1.5, -20.4, 0)), False)
sketch16.addGeometry(Part.LineSegment(App.Vector(-1.5, -20.4, 0), App.Vector(1.5, -20.4, 0)), False)
sketch16.addGeometry(Part.LineSegment(App.Vector(1.5, -20.4, 0), App.Vector(1.5, -17.4, 0)), False)
sketch16.addGeometry(Part.LineSegment(App.Vector(1.5, -17.4, 0), App.Vector(-1.5, -17.4, 0)), False)
sketch16.addConstraint(Sketcher.Constraint("Coincident", 0, 2, 1, 1))
sketch16.addConstraint(Sketcher.Constraint("Coincident", 1, 2, 2, 1))
sketch16.addConstraint(Sketcher.Constraint("Coincident", 2, 2, 3, 1))
sketch16.addConstraint(Sketcher.Constraint("Coincident", 3, 2, 0, 1))
sketch16.addConstraint(Sketcher.Constraint("Vertical", 0))
sketch16.addConstraint(Sketcher.Constraint("Horizontal", 1))
sketch16.addConstraint(Sketcher.Constraint("Vertical", 2))
sketch16.addConstraint(Sketcher.Constraint("Horizontal", 3))
sketch16.addConstraint(Sketcher.Constraint("Equal", 3, 0))
sketch16.addConstraint(Sketcher.Constraint("DistanceX", 1, 1, 1, 2, 3.0))
sketch16.addConstraint(Sketcher.Constraint("DistanceX", 0, 2, -1, 1, 1.5))
sketch16.addConstraint(Sketcher.Constraint("DistanceY", 0, 2, -1, 1, 20.4))
pad13 = body.newObject("PartDesign::Pad", "Pad012")
pad13.Profile = sketch16
pad13.Length = 229

# Sketch on an angled plane
sketch17 = body.newObject("Sketcher::SketchObject", "Sketch016")
sketch17.Placement = App.Placement(App.Vector(-15.843277, 0, -7.432401), App.Rotation(App.Vector(-0.424708648, 0, 0.905330086), App.Vector(0, 1, 0), App.Vector(-0.905330086, 0, -0.424708648), "ZXY"))
sketch17.addGeometry(Part.LineSegment(App.Vector(-1.5, -17.4, 0), App.Vector(-1.5, -20.4, 0)), False)
sketch17.addGeometry(Part.LineSegment(App.Vector(-1.5, -20.4, 0), App.Vector(1.5, -20.4, 0)), False)
sketch17.addGeometry(Part.LineSegment(App.Vector(1.5, -20.4, 0), App.Vector(1.5, -17.4, 0)), False)
sketch17.addGeometry(Part.LineSegment(App.Vector(1.5, -17.4, 0), App.Vector(-1.5, -17.4, 0)), False)
sketch17.addConstraint(Sketcher.Constraint("Coincident", 0, 2, 1, 1))
sketch17.addConstraint(Sketcher.Constraint("Coincident", 1, 2, 2, 1))
sketch17.addConstraint(Sketcher.Constraint("Coincident", 2, 2, 3, 1))
sketch17.addConstraint(Sketcher.Constraint("Coincident", 3, 2, 0, 1))
sketch17.addConstraint(Sketcher.Constraint("Vertical", 0))
sketch17.addConstraint(Sketcher.Constraint("Horizontal", 1))
sketch17.addConstraint(Sketcher.Constraint("Vertical", 2))
sketch17.addConstraint(Sketcher.Constraint("Horizontal", 3))
sketch17.addConstraint(Sketcher.Constraint("Equal", 3, 0))
sketch17.addConstraint(Sketcher.Constraint("DistanceX", 1, 1, 1, 2, 3.0))
sketch17.addConstraint(Sketcher.Constraint("DistanceX", 0, 2, -1, 1, 1.5))
sketch17.addConstraint(Sketcher.Constraint("DistanceY", 0, 2, -1, 1, 20.4))
pad14 = body.newObject("PartDesign::Pad", "Pad013")
pad14.Profile = sketch17
pad14.Length = 229

# Sketch on XZ plane
sketch18 = body.newObject("Sketcher::SketchObject", "Sketch017")
sketch18.AttachmentSupport = (doc.getObject("XZ_Plane"), [""])
sketch18.MapMode = "FlatFace"
sketch18.AttachmentOffset = App.Placement(App.Vector(0, 0, 20.4), App.Rotation())
sketch18.addGeometry(Part.LineSegment(App.Vector(81, -187, 0), App.Vector(91, -182, 0)), False)
sketch18.addGeometry(Part.LineSegment(App.Vector(91, -182, 0), App.Vector(80, -158, 0)), False)
sketch18.addGeometry(Part.LineSegment(App.Vector(80, -158, 0), App.Vector(70, -162, 0)), False)
sketch18.addGeometry(Part.LineSegment(App.Vector(70, -162, 0), App.Vector(81, -187, 0)), False)
sketch18.addGeometry(Part.LineSegment(App.Vector(-182, -91, 0), App.Vector(-158, -80, 0)), False)
sketch18.addGeometry(Part.LineSegment(App.Vector(-158, -80, 0), App.Vector(-162, -70, 0)), False)
sketch18.addGeometry(Part.LineSegment(App.Vector(-162, -70, 0), App.Vector(-187, -81, 0)), False)
sketch18.addGeometry(Part.LineSegment(App.Vector(-187, -81, 0), App.Vector(-182, -91, 0)), False)
sketch18.addGeometry(Part.LineSegment(App.Vector(-91, 182, 0), App.Vector(-80, 158, 0)), False)
sketch18.addGeometry(Part.LineSegment(App.Vector(-80, 158, 0), App.Vector(-70, 162, 0)), False)
sketch18.addGeometry(Part.LineSegment(App.Vector(-70, 162, 0), App.Vector(-81, 187, 0)), False)
sketch18.addGeometry(Part.LineSegment(App.Vector(-81, 187, 0), App.Vector(-91, 182, 0)), False)
sketch18.addGeometry(Part.LineSegment(App.Vector(182, 91, 0), App.Vector(158, 80, 0)), False)
sketch18.addGeometry(Part.LineSegment(App.Vector(158, 80, 0), App.Vector(162, 70, 0)), False)
sketch18.addGeometry(Part.LineSegment(App.Vector(162, 70, 0), App.Vector(187, 81, 0)), False)
sketch18.addGeometry(Part.LineSegment(App.Vector(187, 81, 0), App.Vector(182, 91, 0)), False)
sketch18.addConstraint(Sketcher.Constraint("Coincident", 0, 2, 1, 1))
sketch18.addConstraint(Sketcher.Constraint("Coincident", 1, 2, 2, 1))
sketch18.addConstraint(Sketcher.Constraint("Coincident", 2, 2, 3, 1))
sketch18.addConstraint(Sketcher.Constraint("Coincident", 3, 2, 0, 1))
sketch18.addConstraint(Sketcher.Constraint("Coincident", 4, 2, 5, 1))
sketch18.addConstraint(Sketcher.Constraint("Coincident", 5, 2, 6, 1))
sketch18.addConstraint(Sketcher.Constraint("Coincident", 6, 2, 7, 1))
sketch18.addConstraint(Sketcher.Constraint("Coincident", 7, 2, 4, 1))
sketch18.addConstraint(Sketcher.Constraint("Coincident", 8, 2, 9, 1))
sketch18.addConstraint(Sketcher.Constraint("Coincident", 9, 2, 10, 1))
sketch18.addConstraint(Sketcher.Constraint("Coincident", 10, 2, 11, 1))
sketch18.addConstraint(Sketcher.Constraint("Coincident", 11, 2, 8, 1))
sketch18.addConstraint(Sketcher.Constraint("Coincident", 12, 2, 13, 1))
sketch18.addConstraint(Sketcher.Constraint("Coincident", 13, 2, 14, 1))
sketch18.addConstraint(Sketcher.Constraint("Coincident", 14, 2, 15, 1))
sketch18.addConstraint(Sketcher.Constraint("Coincident", 15, 2, 12, 1))
sketch18.addConstraint(Sketcher.Constraint("Symmetric", 1, 2, 8, 2, -1, 1))
sketch18.addConstraint(Sketcher.Constraint("Symmetric", 2, 2, 9, 2, -1, 1))
sketch18.addConstraint(Sketcher.Constraint("Symmetric", 3, 2, 10, 2, -1, 1))
sketch18.addConstraint(Sketcher.Constraint("Symmetric", 0, 2, 11, 2, -1, 1))
sketch18.addConstraint(Sketcher.Constraint("Symmetric", 4, 2, 12, 2, -1, 1))
sketch18.addConstraint(Sketcher.Constraint("Symmetric", 5, 2, 13, 2, -1, 1))
sketch18.addConstraint(Sketcher.Constraint("Symmetric", 6, 2, 14, 2, -1, 1))
sketch18.addConstraint(Sketcher.Constraint("Symmetric", 7, 2, 15, 2, -1, 1))
sketch18.addConstraint(Sketcher.Constraint("Perpendicular", 0, 1))
sketch18.addConstraint(Sketcher.Constraint("Perpendicular", 1, 2))
sketch18.addConstraint(Sketcher.Constraint("Perpendicular", 2, 3))
sketch18.addConstraint(Sketcher.Constraint("Perpendicular", 3, 4))
sketch18.addConstraint(Sketcher.Constraint("Perpendicular", 4, 5))
sketch18.addConstraint(Sketcher.Constraint("Perpendicular", 5, 6))
sketch18.addConstraint(Sketcher.Constraint("Perpendicular", 6, 7))
sketch18.addConstraint(Sketcher.Constraint("Equal", 3, 4))
sketch18.addConstraint(Sketcher.Constraint("Equal", 2, 5))
sketch18.addConstraint(Sketcher.Constraint("Distance", 0, 11.0))
sketch18.addConstraint(Sketcher.Constraint("Distance", 1, 27.0))
sketch18.addConstraint(Sketcher.Constraint("DistanceX", -1, 1, 0, 2, 91.1998))
sketch18.addConstraint(Sketcher.Constraint("DistanceY", 7, 2, -1, 1, 91.1998))
sketch18.addConstraint(Sketcher.Constraint("DistanceX", 8, 2, 2, 2, 149.506702))
sketch18.addConstraint(Sketcher.Constraint("DistanceY", 1, 2, -1, 1, 157.552311))
sketch18.addConstraint(Sketcher.Constraint("DistanceX", 4, 2, -1, 1, 157.552311))
pad15 = body.newObject("PartDesign::Pad", "Pad014")
pad15.Profile = sketch18
pad15.Length = 11
body2 = doc.addObject("PartDesign::Body", "Body001")

# Sketch on XZ plane
sketch19 = body2.newObject("Sketcher::SketchObject", "Sketch018")
sketch19.AttachmentSupport = (doc.getObject("XZ_Plane001"), [""])
sketch19.MapMode = "FlatFace"
sketch19.AttachmentOffset = App.Placement(App.Vector(0, 0, 6.4), App.Rotation())
sketch19.addGeometry(Part.Circle(App.Vector(-216, 78, 0), App.Vector(0, 0, 1), 15), False)
sketch19.addConstraint(Sketcher.Constraint("Diameter", 0, 30.0))
sketch19.addConstraint(Sketcher.Constraint("DistanceX", 0, 3, -1, 1, 215.829723))
sketch19.addConstraint(Sketcher.Constraint("DistanceY", -1, 1, 0, 3, 78.024237))
pad16 = body2.newObject("PartDesign::Pad", "Pad015")
pad16.Profile = sketch19
pad16.Length = 10
body3 = doc.addObject("PartDesign::Body", "Body002")

# Sketch on XZ plane
sketch20 = body3.newObject("Sketcher::SketchObject", "Sketch019")
sketch20.AttachmentSupport = (doc.getObject("XZ_Plane002"), [""])
sketch20.MapMode = "FlatFace"
sketch20.AttachmentOffset = App.Placement(App.Vector(0, 0, 6.4), App.Rotation())
sketch20.addGeometry(Part.Circle(App.Vector(-78, -216, 0), App.Vector(0, 0, 1), 15), False)
sketch20.addConstraint(Sketcher.Constraint("Diameter", 0, 30.0))
sketch20.addConstraint(Sketcher.Constraint("DistanceX", 0, 3, -1, 1, 78.024237))
sketch20.addConstraint(Sketcher.Constraint("DistanceY", 0, 3, -1, 1, 215.829723))
pad17 = body3.newObject("PartDesign::Pad", "Pad016")
pad17.Profile = sketch20
pad17.Length = 10
body4 = doc.addObject("PartDesign::Body", "Body003")

# Sketch on XZ plane
sketch21 = body4.newObject("Sketcher::SketchObject", "Sketch020")
sketch21.AttachmentSupport = (doc.getObject("XZ_Plane003"), [""])
sketch21.MapMode = "FlatFace"
sketch21.AttachmentOffset = App.Placement(App.Vector(0, 0, 6.4), App.Rotation())
sketch21.addGeometry(Part.Circle(App.Vector(216, -78, 0), App.Vector(0, 0, 1), 15), False)
sketch21.addConstraint(Sketcher.Constraint("Diameter", 0, 30.0))
sketch21.addConstraint(Sketcher.Constraint("DistanceX", -1, 1, 0, 3, 215.829723))
sketch21.addConstraint(Sketcher.Constraint("DistanceY", 0, 3, -1, 1, 78.024237))
pad18 = body4.newObject("PartDesign::Pad", "Pad017")
pad18.Profile = sketch21
pad18.Length = 10
body5 = doc.addObject("PartDesign::Body", "Body004")

# Sketch on XZ plane
sketch22 = body5.newObject("Sketcher::SketchObject", "Sketch021")
sketch22.AttachmentSupport = (doc.getObject("XZ_Plane004"), [""])
sketch22.MapMode = "FlatFace"
sketch22.AttachmentOffset = App.Placement(App.Vector(0, 0, 6.4), App.Rotation())
sketch22.addGeometry(Part.Circle(App.Vector(78, 216, 0), App.Vector(0, 0, 1), 15), False)
sketch22.addConstraint(Sketcher.Constraint("Diameter", 0, 30.0))
sketch22.addConstraint(Sketcher.Constraint("DistanceX", -1, 1, 0, 3, 78.024237))
sketch22.addConstraint(Sketcher.Constraint("DistanceY", -1, 1, 0, 3, 215.829723))
pad19 = body5.newObject("PartDesign::Pad", "Pad018")
pad19.Profile = sketch22
pad19.Length = 10

doc.recompute()
